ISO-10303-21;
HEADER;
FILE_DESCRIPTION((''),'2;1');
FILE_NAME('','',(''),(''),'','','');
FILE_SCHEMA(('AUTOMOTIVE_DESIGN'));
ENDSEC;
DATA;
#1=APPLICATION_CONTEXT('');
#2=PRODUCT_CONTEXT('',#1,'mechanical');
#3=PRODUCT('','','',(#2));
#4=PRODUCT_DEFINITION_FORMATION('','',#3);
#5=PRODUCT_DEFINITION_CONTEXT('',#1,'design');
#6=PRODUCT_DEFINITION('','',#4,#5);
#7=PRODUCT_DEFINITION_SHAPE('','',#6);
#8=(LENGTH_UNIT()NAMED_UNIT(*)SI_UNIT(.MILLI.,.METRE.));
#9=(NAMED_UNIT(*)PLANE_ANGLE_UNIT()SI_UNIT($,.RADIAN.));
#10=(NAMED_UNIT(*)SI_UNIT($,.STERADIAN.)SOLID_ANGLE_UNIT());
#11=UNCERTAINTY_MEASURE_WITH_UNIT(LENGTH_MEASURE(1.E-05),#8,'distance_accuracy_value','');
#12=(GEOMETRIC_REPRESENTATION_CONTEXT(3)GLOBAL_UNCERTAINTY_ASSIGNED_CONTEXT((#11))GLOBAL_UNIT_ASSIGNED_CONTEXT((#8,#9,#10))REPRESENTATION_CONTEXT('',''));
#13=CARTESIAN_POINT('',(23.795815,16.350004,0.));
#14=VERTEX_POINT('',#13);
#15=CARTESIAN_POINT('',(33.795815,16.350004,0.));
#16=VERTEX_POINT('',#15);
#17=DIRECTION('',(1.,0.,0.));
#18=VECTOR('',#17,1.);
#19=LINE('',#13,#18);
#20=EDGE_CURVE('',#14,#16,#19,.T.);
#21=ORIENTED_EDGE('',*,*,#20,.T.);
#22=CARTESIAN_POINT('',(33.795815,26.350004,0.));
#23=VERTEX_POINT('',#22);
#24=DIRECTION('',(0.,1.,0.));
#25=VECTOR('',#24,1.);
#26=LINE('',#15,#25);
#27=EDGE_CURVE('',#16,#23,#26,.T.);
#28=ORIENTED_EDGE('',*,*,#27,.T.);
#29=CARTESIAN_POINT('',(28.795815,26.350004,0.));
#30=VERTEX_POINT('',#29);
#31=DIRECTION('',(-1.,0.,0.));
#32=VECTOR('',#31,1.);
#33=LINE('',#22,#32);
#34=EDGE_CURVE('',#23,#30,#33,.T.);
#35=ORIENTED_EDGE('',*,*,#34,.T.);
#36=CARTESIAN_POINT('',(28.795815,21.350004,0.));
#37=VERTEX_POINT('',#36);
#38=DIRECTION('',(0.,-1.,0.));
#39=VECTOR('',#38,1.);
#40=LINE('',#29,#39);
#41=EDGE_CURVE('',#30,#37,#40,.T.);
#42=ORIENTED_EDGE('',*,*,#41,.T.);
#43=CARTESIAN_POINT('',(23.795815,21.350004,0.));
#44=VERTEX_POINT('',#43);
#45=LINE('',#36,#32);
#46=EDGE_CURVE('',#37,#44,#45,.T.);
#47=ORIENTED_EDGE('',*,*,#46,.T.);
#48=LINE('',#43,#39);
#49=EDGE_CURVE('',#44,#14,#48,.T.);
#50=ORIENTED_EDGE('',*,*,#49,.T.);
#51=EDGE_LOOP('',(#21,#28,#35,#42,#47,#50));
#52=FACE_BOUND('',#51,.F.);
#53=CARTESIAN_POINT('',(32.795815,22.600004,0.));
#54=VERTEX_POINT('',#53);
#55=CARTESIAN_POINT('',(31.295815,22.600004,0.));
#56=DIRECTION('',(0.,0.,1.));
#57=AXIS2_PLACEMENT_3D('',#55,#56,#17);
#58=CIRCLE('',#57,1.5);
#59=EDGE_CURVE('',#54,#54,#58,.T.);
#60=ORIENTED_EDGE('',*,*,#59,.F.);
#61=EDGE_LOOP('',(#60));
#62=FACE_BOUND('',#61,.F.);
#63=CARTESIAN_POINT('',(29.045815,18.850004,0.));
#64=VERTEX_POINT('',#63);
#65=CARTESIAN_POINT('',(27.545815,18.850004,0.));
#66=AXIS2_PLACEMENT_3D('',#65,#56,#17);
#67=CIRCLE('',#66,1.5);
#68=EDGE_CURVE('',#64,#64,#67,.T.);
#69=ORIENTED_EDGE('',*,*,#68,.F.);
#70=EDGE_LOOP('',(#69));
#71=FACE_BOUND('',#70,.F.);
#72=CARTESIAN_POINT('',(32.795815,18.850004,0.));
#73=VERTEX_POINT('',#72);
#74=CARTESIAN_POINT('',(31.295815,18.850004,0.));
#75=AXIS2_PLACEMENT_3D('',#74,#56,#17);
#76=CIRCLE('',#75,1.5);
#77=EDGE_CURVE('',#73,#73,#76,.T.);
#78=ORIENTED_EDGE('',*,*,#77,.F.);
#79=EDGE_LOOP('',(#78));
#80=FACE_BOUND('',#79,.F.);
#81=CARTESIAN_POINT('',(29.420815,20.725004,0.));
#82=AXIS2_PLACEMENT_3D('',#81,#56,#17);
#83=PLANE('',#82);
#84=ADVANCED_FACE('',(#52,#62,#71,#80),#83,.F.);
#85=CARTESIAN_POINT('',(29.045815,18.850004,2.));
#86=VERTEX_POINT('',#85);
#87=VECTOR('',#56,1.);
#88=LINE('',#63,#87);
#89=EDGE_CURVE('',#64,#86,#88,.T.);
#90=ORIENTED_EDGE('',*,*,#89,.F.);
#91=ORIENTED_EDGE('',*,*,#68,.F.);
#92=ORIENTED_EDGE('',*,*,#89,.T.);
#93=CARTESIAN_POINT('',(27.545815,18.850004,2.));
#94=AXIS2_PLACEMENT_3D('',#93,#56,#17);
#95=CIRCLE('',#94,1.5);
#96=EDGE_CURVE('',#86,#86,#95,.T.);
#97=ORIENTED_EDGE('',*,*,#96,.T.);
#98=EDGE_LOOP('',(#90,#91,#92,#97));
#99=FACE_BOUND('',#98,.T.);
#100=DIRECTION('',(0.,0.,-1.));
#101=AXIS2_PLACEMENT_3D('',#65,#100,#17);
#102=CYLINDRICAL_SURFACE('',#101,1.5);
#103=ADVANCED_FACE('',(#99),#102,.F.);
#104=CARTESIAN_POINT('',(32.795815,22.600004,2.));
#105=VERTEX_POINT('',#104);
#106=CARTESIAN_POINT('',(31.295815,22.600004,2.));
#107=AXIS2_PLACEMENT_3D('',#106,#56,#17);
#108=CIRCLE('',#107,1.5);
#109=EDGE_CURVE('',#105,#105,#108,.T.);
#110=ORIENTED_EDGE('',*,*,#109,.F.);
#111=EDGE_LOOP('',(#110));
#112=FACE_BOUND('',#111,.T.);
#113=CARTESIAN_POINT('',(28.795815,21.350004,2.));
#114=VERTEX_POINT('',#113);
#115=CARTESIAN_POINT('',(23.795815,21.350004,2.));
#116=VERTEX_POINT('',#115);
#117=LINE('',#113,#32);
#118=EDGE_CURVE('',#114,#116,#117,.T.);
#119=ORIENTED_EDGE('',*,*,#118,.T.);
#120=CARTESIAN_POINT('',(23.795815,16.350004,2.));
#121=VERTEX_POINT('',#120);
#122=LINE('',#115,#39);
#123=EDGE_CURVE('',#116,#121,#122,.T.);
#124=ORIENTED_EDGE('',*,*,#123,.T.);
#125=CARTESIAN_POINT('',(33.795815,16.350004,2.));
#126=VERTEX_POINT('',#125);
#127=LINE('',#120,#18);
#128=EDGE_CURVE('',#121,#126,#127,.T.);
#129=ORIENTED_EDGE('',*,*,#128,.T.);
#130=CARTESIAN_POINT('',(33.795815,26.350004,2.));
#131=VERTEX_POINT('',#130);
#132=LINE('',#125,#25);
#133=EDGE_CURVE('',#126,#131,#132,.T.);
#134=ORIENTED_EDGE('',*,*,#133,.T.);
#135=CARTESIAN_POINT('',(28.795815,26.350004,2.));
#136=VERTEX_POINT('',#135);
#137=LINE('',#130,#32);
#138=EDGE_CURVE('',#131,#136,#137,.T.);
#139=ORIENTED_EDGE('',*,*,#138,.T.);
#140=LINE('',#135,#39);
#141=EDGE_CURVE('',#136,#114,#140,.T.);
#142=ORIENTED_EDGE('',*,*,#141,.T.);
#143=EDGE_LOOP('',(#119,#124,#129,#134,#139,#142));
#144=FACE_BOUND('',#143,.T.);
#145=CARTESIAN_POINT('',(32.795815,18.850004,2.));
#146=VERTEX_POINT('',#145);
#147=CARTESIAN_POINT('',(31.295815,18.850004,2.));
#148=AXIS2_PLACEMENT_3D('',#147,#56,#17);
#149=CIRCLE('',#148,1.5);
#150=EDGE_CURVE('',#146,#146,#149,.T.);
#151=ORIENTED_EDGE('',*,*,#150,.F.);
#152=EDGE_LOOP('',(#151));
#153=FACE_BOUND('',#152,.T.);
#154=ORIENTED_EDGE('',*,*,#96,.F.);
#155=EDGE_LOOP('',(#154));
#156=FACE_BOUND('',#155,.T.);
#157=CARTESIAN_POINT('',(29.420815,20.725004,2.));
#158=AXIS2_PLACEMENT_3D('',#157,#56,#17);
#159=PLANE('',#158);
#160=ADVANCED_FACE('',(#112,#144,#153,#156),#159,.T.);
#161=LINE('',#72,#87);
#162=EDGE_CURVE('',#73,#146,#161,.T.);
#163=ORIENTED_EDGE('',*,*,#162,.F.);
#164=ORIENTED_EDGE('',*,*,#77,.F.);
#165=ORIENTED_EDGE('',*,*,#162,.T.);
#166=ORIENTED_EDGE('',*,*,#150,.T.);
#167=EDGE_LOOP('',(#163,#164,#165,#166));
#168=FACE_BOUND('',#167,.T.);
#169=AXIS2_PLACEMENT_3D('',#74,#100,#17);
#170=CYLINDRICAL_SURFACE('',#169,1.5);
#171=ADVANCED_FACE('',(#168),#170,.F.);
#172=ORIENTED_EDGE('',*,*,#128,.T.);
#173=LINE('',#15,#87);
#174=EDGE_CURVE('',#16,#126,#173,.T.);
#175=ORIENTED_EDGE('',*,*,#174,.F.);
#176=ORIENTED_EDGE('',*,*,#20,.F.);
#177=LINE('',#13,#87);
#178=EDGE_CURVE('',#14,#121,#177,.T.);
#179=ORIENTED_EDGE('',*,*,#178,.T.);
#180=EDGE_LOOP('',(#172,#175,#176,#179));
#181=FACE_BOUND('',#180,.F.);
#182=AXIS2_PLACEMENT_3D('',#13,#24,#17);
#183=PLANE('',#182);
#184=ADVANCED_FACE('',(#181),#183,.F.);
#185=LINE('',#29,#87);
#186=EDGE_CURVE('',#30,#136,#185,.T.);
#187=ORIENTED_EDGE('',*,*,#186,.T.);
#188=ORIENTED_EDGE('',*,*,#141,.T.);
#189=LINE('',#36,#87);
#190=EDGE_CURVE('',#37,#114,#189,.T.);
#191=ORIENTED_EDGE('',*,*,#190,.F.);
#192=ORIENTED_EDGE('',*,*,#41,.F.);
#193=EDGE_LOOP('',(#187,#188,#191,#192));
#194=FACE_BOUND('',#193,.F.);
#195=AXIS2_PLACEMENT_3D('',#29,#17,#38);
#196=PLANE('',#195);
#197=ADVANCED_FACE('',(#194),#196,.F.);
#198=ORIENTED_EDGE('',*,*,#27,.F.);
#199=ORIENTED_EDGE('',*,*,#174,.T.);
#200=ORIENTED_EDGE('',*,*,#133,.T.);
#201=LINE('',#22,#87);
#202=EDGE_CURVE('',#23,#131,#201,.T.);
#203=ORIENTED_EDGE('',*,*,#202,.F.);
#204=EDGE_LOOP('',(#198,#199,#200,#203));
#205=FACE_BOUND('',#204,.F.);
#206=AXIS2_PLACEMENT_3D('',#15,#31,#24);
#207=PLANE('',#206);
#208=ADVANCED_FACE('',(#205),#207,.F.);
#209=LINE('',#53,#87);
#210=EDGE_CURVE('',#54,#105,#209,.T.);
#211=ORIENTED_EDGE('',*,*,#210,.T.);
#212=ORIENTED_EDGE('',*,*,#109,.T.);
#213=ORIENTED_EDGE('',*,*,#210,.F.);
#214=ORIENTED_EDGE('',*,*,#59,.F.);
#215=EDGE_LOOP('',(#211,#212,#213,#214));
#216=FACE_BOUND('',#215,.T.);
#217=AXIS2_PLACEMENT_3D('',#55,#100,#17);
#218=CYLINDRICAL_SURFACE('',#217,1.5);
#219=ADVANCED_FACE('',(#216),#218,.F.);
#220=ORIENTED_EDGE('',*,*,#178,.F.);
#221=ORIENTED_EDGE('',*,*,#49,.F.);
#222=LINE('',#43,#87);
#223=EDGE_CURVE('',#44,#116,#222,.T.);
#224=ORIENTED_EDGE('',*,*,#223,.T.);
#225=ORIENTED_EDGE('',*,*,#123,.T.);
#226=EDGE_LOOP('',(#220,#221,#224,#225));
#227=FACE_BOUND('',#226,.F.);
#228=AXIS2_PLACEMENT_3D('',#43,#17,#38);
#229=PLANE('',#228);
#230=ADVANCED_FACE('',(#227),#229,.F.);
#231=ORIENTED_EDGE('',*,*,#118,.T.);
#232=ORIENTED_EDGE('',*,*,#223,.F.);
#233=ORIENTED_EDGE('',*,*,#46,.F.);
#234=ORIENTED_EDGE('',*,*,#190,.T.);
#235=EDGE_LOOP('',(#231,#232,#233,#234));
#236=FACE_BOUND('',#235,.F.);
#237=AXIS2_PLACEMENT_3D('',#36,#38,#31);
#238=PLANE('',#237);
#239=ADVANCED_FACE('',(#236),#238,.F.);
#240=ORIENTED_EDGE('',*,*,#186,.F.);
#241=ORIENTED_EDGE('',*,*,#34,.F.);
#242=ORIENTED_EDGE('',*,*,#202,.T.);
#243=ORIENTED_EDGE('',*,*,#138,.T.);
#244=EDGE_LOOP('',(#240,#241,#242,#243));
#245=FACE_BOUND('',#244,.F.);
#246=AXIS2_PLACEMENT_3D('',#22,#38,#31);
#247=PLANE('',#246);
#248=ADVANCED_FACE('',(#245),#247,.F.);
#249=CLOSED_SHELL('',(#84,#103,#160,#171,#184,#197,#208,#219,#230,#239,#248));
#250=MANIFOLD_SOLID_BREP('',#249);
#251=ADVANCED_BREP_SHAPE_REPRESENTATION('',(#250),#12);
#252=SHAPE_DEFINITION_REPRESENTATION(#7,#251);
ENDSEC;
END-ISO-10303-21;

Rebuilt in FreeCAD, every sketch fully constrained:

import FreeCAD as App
import Part
import Sketcher

V = App.Vector
Q = App.Units.Quantity

doc = App.newDocument("Part")
body = doc.addObject("PartDesign::Body", "Body")

sketch1 = body.newObject("Sketcher::SketchObject", "Sketch")
sketch1.AttachmentSupport = (doc.getObject("XY_Plane"), [""])
sketch1.MapMode = "FlatFace"
sketch1.addGeometry([
    Part.LineSegment(V(23.795815, 21.350004, 0), V(23.795815, 16.350004, 0)),
    Part.LineSegment(V(23.795815, 16.350004, 0), V(33.795815, 16.350004, 0)),
    Part.LineSegment(V(33.795815, 16.350004, 0), V(33.795815, 26.350004, 0)),
    Part.LineSegment(V(33.795815, 26.350004, 0), V(28.795815, 26.350004, 0)),
    Part.LineSegment(V(28.795815, 26.350004, 0), V(28.795815, 21.350004, 0)),
    Part.LineSegment(V(28.795815, 21.350004, 0), V(23.795815, 21.350004, 0)),
    Part.Circle(V(27.545815, 18.850004, 0), V(0, 0, 1), 1.5),
    Part.Circle(V(31.295815, 18.850004, 0), V(0, 0, 1), 1.5),
    Part.Circle(V(31.295815, 22.600004, 0), V(0, 0, 1), 1.5),
], False)
sketch1.addConstraint([
    Sketcher.Constraint("Coincident", 0, 2, 1, 1),
    Sketcher.Constraint("Coincident", 1, 2, 2, 1),
    Sketcher.Constraint("Coincident", 2, 2, 3, 1),
    Sketcher.Constraint("Coincident", 3, 2, 4, 1),
    Sketcher.Constraint("Coincident", 4, 2, 5, 1),
    Sketcher.Constraint("Coincident", 5, 2, 0, 1),
    Sketcher.Constraint("Vertical", 0),
    Sketcher.Constraint("Horizontal", 1),
    Sketcher.Constraint("Vertical", 2),
    Sketcher.Constraint("Horizontal", 3),
    Sketcher.Constraint("Vertical", 4),
    Sketcher.Constraint("Horizontal", 5),
    Sketcher.Constraint("Equal", 6, 7),
    Sketcher.Constraint("Equal", 7, 8),
    Sketcher.Constraint("Horizontal", 6, 3, 7, 3),
    Sketcher.Constraint("Vertical", 7, 3, 8, 3),
    Sketcher.Constraint("Equal", 3, 5),
    Sketcher.Constraint("Equal", 5, 0),
    Sketcher.Constraint("Equal", 1, 2),
    Sketcher.Constraint("Diameter", 6, Q("3 mm")),
    Sketcher.Constraint("DistanceX", 1, 1, 1, 2, Q("10 mm")),
    Sketcher.Constraint("DistanceY", 0, 2, 6, 3, Q("2.5 mm")),
    Sketcher.Constraint("DistanceX", 0, 2, 7, 3, Q("7.5 mm")),
    Sketcher.Constraint("DistanceX", 6, 3, 7, 3, Q("3.75 mm")),
    Sketcher.Constraint("DistanceY", 7, 3, 8, 3, Q("3.75 mm")),
    Sketcher.Constraint("DistanceX", -1, 1, 6, 3, Q("27.545815 mm")),
    Sketcher.Constraint("DistanceY", -1, 1, 6, 3, Q("18.850004 mm")),
])
pad1 = body.newObject("PartDesign::Pad", "Pad")
pad1.Profile = sketch1
pad1.Length = 2

doc.recompute()
